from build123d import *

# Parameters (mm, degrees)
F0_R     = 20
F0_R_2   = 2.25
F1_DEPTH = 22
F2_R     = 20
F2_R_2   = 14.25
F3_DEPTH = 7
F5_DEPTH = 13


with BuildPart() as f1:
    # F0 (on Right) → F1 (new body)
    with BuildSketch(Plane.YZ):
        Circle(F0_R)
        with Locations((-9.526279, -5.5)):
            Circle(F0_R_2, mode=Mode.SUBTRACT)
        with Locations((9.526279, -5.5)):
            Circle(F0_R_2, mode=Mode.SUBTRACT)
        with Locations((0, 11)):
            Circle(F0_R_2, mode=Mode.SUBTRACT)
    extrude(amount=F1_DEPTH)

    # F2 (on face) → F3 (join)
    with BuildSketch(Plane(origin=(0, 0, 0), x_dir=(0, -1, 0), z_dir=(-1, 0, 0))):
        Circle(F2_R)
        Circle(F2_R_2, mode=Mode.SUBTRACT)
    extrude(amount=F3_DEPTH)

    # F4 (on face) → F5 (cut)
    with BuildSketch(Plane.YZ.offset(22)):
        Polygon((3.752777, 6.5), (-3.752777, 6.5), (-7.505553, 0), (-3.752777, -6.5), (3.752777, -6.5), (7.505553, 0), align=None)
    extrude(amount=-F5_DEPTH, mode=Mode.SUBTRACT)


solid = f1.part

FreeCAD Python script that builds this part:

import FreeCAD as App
import Part
import Sketcher
from FreeCAD import Vector
Q = App.Units.Quantity


def add_polygon(sketch, points):
    """Adds a closed chain of lines whose ends are joined by coincident constraints."""
    first, n = sketch.GeometryCount, len(points)
    for a, b in zip(points, points[1:] + points[:1]):
        sketch.addGeometry(Part.LineSegment(App.Vector(*a, 0), App.Vector(*b, 0)), False)
    for i in range(n):
        sketch.addConstraint(Sketcher.Constraint("Coincident", first + i, 2, first + (i + 1) % n, 1))

doc = App.newDocument("Part")
body = doc.addObject("PartDesign::Body", "Body")

# Sketch on YZ plane
sketch1 = body.newObject("Sketcher::SketchObject", "Sketch")
sketch1.AttachmentSupport = (doc.getObject("YZ_Plane"), [""])
sketch1.MapMode = "FlatFace"
sketch1.addGeometry([
    Part.Circle(Vector(0, 0, 0), Vector(0, 0, 1), 20),
    Part.Circle(Vector(-9.5, -5.5, 0), Vector(0, 0, 1), 2.2),
    Part.Circle(Vector(9.5, -5.5, 0), Vector(0, 0, 1), 2.2),
    Part.Circle(Vector(0, 11, 0), Vector(0, 0, 1), 2.2),
], False)
sketch1.addConstraint([
    Sketcher.Constraint("Coincident", 0, 3, -1, 1),
    Sketcher.Constraint("Equal", 1, 2),
    Sketcher.Constraint("Equal", 2, 3),
    Sketcher.Constraint("Symmetric", 1, 3, 2, 3, -2),
    Sketcher.Constraint("PointOnObject", 3, 3, -2),
    Sketcher.Constraint("Diameter", 0, Q("40 mm")),
    Sketcher.Constraint("Diameter", 1, Q("4.5 mm")),
    Sketcher.Constraint("DistanceY", -1, 1, 3, 3, Q("11 mm")),
    Sketcher.Constraint("DistanceY", 1, 3, -1, 1, Q("5.5 mm")),
    Sketcher.Constraint("DistanceX", 1, 3, -1, 1, Q("9.526279 mm")),
])
pad1 = body.newObject("PartDesign::Pad", "Pad")
pad1.Profile = sketch1
pad1.Length = 22

# Sketch on YZ plane
sketch2 = body.newObject("Sketcher::SketchObject", "Sketch001")
sketch2.AttachmentSupport = (doc.getObject("YZ_Plane"), [""])
sketch2.MapMode = "FlatFace"
sketch2.addGeometry([
    Part.Circle(Vector(0, 0, 0), Vector(0, 0, 1), 20),
    Part.Circle(Vector(0, 0, 0), Vector(0, 0, 1), 14),
], False)
sketch2.addConstraint([
    Sketcher.Constraint("Coincident", 0, 3, -1, 1),
    Sketcher.Constraint("Coincident", 1, 3, -1, 1),
    Sketcher.Constraint("Diameter", 0, Q("40 mm")),
    Sketcher.Constraint("Diameter", 1, Q("28.5 mm")),
])
pad2 = body.newObject("PartDesign::Pad", "Pad001")
pad2.Profile = sketch2
pad2.Length = 7
pad2.Reversed = True

# Sketch on YZ plane
sketch3 = body.newObject("Sketcher::SketchObject", "Sketch002")
sketch3.AttachmentSupport = (doc.getObject("YZ_Plane"), [""])
sketch3.MapMode = "FlatFace"
sketch3.AttachmentOffset = App.Placement(Vector(0, 0, 22), App.Rotation())
add_polygon(sketch3, [(4, 6), (-4, 6), (-8, 0), (-4, -6), (4, -6), (8, 0)])  # lines 0-5
sketch3.addConstraint([
    Sketcher.Constraint("Horizontal", 0),
    Sketcher.Constraint("Horizontal", 3),
    Sketcher.Constraint("Symmetric", 0, 2, 3, 2, -1, 1),
    Sketcher.Constraint("Symmetric", 1, 2, 4, 2, -1, 1),
    Sketcher.Constraint("PointOnObject", 1, 2, -1),
    Sketcher.Constraint("Parallel", 2, 5),
    Sketcher.Constraint("Vertical", 0, 2, 2, 2),
    Sketcher.Constraint("Angle", 1, Q("-119.999995 deg")),
    Sketcher.Constraint("DistanceY", 2, 2, 0, 2, Q("13 mm")),
    Sketcher.Constraint("DistanceX", 0, 2, 0, 1, Q("7.505554 mm")),
])
pocket1 = body.newObject("PartDesign::Pocket", "Pocket")
pocket1.Profile = sketch3
pocket1.Length = 13

doc.recompute()
